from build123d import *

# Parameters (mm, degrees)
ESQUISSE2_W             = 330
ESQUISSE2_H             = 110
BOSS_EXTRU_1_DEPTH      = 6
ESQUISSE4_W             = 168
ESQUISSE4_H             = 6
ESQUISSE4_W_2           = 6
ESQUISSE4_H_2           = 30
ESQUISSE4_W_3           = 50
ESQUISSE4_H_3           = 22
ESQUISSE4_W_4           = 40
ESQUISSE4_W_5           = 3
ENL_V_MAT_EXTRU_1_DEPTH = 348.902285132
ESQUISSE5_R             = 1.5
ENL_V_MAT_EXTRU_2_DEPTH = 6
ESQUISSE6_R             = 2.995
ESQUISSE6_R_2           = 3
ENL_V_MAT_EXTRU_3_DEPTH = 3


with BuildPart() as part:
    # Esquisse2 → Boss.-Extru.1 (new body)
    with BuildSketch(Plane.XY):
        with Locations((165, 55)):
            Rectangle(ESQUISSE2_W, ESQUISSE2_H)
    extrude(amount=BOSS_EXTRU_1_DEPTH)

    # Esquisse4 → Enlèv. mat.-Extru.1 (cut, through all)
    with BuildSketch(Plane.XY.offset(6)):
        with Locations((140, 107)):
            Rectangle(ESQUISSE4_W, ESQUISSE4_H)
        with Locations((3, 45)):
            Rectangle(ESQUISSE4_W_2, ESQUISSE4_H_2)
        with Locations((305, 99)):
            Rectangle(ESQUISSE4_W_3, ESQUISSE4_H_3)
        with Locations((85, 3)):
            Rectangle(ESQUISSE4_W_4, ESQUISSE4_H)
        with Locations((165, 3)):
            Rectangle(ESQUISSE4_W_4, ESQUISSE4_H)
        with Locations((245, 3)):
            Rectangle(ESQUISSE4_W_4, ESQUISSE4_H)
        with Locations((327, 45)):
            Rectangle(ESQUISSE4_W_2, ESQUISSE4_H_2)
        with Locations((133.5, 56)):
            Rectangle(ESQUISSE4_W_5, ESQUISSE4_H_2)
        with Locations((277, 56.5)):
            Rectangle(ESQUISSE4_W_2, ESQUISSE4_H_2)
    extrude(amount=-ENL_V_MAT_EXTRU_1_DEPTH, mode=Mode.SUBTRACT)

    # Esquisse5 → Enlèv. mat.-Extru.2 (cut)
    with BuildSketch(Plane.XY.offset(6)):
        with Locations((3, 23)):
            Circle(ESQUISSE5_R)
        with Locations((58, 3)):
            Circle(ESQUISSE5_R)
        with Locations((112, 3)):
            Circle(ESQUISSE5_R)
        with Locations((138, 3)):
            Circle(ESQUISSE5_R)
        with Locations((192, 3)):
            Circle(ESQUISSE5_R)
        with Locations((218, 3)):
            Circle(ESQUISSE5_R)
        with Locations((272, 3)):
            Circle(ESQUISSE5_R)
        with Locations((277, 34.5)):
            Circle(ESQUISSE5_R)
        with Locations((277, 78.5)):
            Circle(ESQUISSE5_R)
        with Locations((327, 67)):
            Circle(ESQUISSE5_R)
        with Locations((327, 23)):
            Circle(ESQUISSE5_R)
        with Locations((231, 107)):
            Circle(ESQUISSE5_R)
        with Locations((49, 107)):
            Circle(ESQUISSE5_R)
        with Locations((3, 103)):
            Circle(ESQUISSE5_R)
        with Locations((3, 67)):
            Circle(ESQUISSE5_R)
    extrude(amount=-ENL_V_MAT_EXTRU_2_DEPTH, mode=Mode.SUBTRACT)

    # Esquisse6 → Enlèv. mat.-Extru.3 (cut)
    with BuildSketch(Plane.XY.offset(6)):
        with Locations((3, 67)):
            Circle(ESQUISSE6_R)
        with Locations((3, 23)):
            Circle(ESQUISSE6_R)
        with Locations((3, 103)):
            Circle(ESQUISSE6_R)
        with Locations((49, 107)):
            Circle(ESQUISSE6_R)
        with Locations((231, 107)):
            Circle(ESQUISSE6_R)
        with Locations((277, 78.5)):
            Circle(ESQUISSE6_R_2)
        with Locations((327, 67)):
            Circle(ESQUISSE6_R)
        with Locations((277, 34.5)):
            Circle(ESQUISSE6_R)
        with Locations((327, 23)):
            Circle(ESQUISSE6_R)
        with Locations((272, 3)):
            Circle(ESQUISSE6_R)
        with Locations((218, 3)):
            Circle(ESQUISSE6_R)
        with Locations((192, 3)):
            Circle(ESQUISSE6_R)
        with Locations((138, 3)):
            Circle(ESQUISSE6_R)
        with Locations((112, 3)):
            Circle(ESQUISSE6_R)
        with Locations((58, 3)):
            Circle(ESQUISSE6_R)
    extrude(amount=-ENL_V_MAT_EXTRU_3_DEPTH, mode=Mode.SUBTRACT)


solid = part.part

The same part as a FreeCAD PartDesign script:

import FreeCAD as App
import Part
import Sketcher
from FreeCAD import Vector
Q = App.Units.Quantity


def add_polygon(sketch, points):
    """Adds a closed chain of lines whose ends are joined by coincident constraints."""
    first, n = sketch.GeometryCount, len(points)
    for a, b in zip(points, points[1:] + points[:1]):
        sketch.addGeometry(Part.LineSegment(App.Vector(*a, 0), App.Vector(*b, 0)), False)
    for i in range(n):
        sketch.addConstraint(Sketcher.Constraint("Coincident", first + i, 2, first + (i + 1) % n, 1))

doc = App.newDocument("Part")
params = doc.addObject("Spreadsheet::Sheet", "Params")
for row, (alias, value) in enumerate([
    ("sketch1_width", "330 mm"),
    ("sketch1_height", "110 mm"),
    ("pad1_length", "6 mm"),
    ("sketch2_width", "168 mm"),
    ("sketch2_width2", "6 mm"),
    ("sketch2_width3", "50 mm"),
    ("sketch2_width4", "40 mm"),
    ("sketch2_width5", "3 mm"),
    ("sketch3_diameter", "3 mm"),
    ("pocket2_length", "6 mm"),
    ("sketch4_diameter", "6 mm"),
    ("sketch4_diameter2", "5.99 mm"),
    ("pocket3_length", "3 mm"),
], start=1):
    params.set(f"A{row}", alias)
    params.set(f"B{row}", "=" + value)
    params.setAlias(f"B{row}", alias)

body = doc.addObject("PartDesign::Body", "Body")

sketch1 = doc.addObject("Sketcher::SketchObject", "Sketch")
body.addObject(sketch1)
sketch1.AttachmentSupport = (doc.XY_Plane, [""])
sketch1.MapMode = "FlatFace"
add_polygon(sketch1, [(0, 110), (0, 0), (330, 0), (330, 110)])
sketch1.addConstraint([
    Sketcher.Constraint("Vertical", 0),
    Sketcher.Constraint("Horizontal", 1),
    Sketcher.Constraint("Vertical", 2),
    Sketcher.Constraint("Horizontal", 3),
    Sketcher.Constraint("Coincident", 0, 2, -1, 1),
    Sketcher.Constraint("DistanceX", 1, 1, 1, 2, Q("330 mm")),
    Sketcher.Constraint("DistanceY", 0, 2, 0, 1, Q("110 mm")),
])
sketch1.setExpression("Constraints[9]", "Params.sketch1_width")
sketch1.setExpression("Constraints[10]", "Params.sketch1_height")
pad1 = doc.addObject("PartDesign::Pad", "Pad")
body.addObject(pad1)
pad1.Profile = sketch1
pad1.setExpression("Length", "Params.pad1_length")

sketch2 = doc.addObject("Sketcher::SketchObject", "Sketch001")
body.addObject(sketch2)
sketch2.AttachmentSupport = (doc.XY_Plane, [""])
sketch2.MapMode = "FlatFace"
sketch2.AttachmentOffset = App.Placement(Vector(0, 0, 6), App.Rotation())
add_polygon(sketch2, [(56, 110), (56, 104), (224, 104), (224, 110)])
add_polygon(sketch2, [(0, 60), (0, 30), (6, 30), (6, 60)])
add_polygon(sketch2, [(280, 110), (280, 88), (330, 88), (330, 110)])
add_polygon(sketch2, [(65, 6), (65, 0), (105, 0), (105, 6)])
add_polygon(sketch2, [(145, 6), (145, 0), (185, 0), (185, 6)])
add_polygon(sketch2, [(225, 6), (225, 0), (265, 0), (265, 6)])
add_polygon(sketch2, [(324, 60), (324, 30), (330, 30), (330, 60)])
add_polygon(sketch2, [(132, 71), (132, 41), (135, 41), (135, 71)])
add_polygon(sketch2, [(274, 71.5), (274, 41.5), (280, 41.5), (280, 71.5)])
sketch2.addConstraint([
    Sketcher.Constraint("Vertical", 0),
    Sketcher.Constraint("Horizontal", 1),
    Sketcher.Constraint("Vertical", 2),
    Sketcher.Constraint("Horizontal", 3),
    Sketcher.Constraint("Vertical", 4),
    Sketcher.Constraint("Horizontal", 5),
    Sketcher.Constraint("Vertical", 6),
    Sketcher.Constraint("Horizontal", 7),
    Sketcher.Constraint("Vertical", 8),
    Sketcher.Constraint("Horizontal", 9),
    Sketcher.Constraint("Vertical", 10),
    Sketcher.Constraint("Horizontal", 11),
    Sketcher.Constraint("Vertical", 12),
    Sketcher.Constraint("Horizontal", 13),
    Sketcher.Constraint("Vertical", 14),
    Sketcher.Constraint("Horizontal", 15),
    Sketcher.Constraint("Vertical", 16),
    Sketcher.Constraint("Horizontal", 17),
    Sketcher.Constraint("Vertical", 18),
    Sketcher.Constraint("Horizontal", 19),
    Sketcher.Constraint("Vertical", 20),
    Sketcher.Constraint("Horizontal", 21),
    Sketcher.Constraint("Vertical", 22),
    Sketcher.Constraint("Horizontal", 23),
    Sketcher.Constraint("Vertical", 24),
    Sketcher.Constraint("Horizontal", 25),
    Sketcher.Constraint("Vertical", 26),
    Sketcher.Constraint("Horizontal", 27),
    Sketcher.Constraint("Vertical", 28),
    Sketcher.Constraint("Horizontal", 29),
    Sketcher.Constraint("Vertical", 30),
    Sketcher.Constraint("Horizontal", 31),
    Sketcher.Constraint("Vertical", 32),
    Sketcher.Constraint("Horizontal", 33),
    Sketcher.Constraint("Vertical", 34),
    Sketcher.Constraint("Horizontal", 35),
    Sketcher.Constraint("PointOnObject", 4, 2, -2),
    Sketcher.Constraint("PointOnObject", 12, 2, -1),
    Sketcher.Constraint("PointOnObject", 16, 2, -1),
    Sketcher.Constraint("PointOnObject", 20, 2, -1),
    Sketcher.Constraint("Horizontal", 3, 2, 10, 2),
    Sketcher.Constraint("Horizontal", 15, 2, 18, 2),
    Sketcher.Constraint("Horizontal", 19, 2, 22, 2),
    Sketcher.Constraint("Horizontal", 5, 2, 24, 2),
    Sketcher.Constraint("Horizontal", 7, 2, 26, 2),
    Sketcher.Constraint("Vertical", 10, 2, 25, 2),
    Sketcher.Constraint("Vertical", 11, 2, 33, 2),
    Sketcher.Constraint("Equal", 15, 17),
    Sketcher.Constraint("Equal", 19, 21),
    Sketcher.Constraint("Equal", 7, 25),
    Sketcher.Constraint("Equal", 27, 33),
    Sketcher.Constraint("Equal", 35, 0),
    Sketcher.Constraint("Equal", 2, 12),
    Sketcher.Constraint("Equal", 26, 28),
    Sketcher.Constraint("Equal", 30, 32),
    Sketcher.Constraint("DistanceX", 1, 1, 1, 2, Q("168 mm")),
    Sketcher.Constraint("DistanceX", 5, 1, 5, 2, Q("6 mm")),
    Sketcher.Constraint("DistanceX", 9, 1, 9, 2, Q("50 mm")),
    Sketcher.Constraint("DistanceX", 13, 1, 13, 2, Q("40 mm")),
    Sketcher.Constraint("DistanceX", 29, 1, 29, 2, Q("3 mm")),
    Sketcher.Constraint("DistanceY", 4, 2, 4, 1, Q("30 mm")),
    Sketcher.Constraint("DistanceY", 8, 2, 8, 1, Q("22 mm")),
    Sketcher.Constraint("DistanceX", -1, 1, 0, 2, Q("56 mm")),
    Sketcher.Constraint("DistanceY", -1, 1, 0, 2, Q("104 mm")),
    Sketcher.Constraint("DistanceY", -1, 1, 4, 2, Q("30 mm")),
    Sketcher.Constraint("DistanceX", -1, 1, 8, 2, Q("280 mm")),
    Sketcher.Constraint("DistanceX", -1, 1, 12, 2, Q("65 mm")),
    Sketcher.Constraint("DistanceX", -1, 1, 16, 2, Q("145 mm")),
    Sketcher.Constraint("DistanceX", -1, 1, 20, 2, Q("225 mm")),
    Sketcher.Constraint("DistanceX", -1, 1, 28, 2, Q("132 mm")),
    Sketcher.Constraint("DistanceY", -1, 1, 28, 2, Q("41 mm")),
    Sketcher.Constraint("DistanceY", -1, 1, 32, 2, Q("41.5 mm")),
])
sketch2.setExpression("Constraints[91]", "Params.sketch2_width")
sketch2.setExpression("Constraints[92]", "Params.sketch2_width2")
sketch2.setExpression("Constraints[93]", "Params.sketch2_width3")
sketch2.setExpression("Constraints[94]", "Params.sketch2_width4")
sketch2.setExpression("Constraints[95]", "Params.sketch2_width5")
pocket1 = doc.addObject("PartDesign::Pocket", "Pocket")
body.addObject(pocket1)
pocket1.Profile = sketch2
pocket1.Type = "ThroughAll"

sketch3 = doc.addObject("Sketcher::SketchObject", "Sketch002")
body.addObject(sketch3)
sketch3.AttachmentSupport = (doc.XY_Plane, [""])
sketch3.MapMode = "FlatFace"
sketch3.AttachmentOffset = App.Placement(Vector(0, 0, 6), App.Rotation())
sketch3.addGeometry([
    Part.Circle(Vector(3, 23, 0), Vector(0, 0, 1), 1.5),
    Part.Circle(Vector(58, 3, 0), Vector(0, 0, 1), 1.5),
    Part.Circle(Vector(112, 3, 0), Vector(0, 0, 1), 1.5),
    Part.Circle(Vector(138, 3, 0), Vector(0, 0, 1), 1.5),
    Part.Circle(Vector(192, 3, 0), Vector(0, 0, 1), 1.5),
    Part.Circle(Vector(218, 3, 0), Vector(0, 0, 1), 1.5),
    Part.Circle(Vector(272, 3, 0), Vector(0, 0, 1), 1.5),
    Part.Circle(Vector(277, 34.5, 0), Vector(0, 0, 1), 1.5),
    Part.Circle(Vector(277, 78.5, 0), Vector(0, 0, 1), 1.5),
    Part.Circle(Vector(327, 67, 0), Vector(0, 0, 1), 1.5),
    Part.Circle(Vector(327, 23, 0), Vector(0, 0, 1), 1.5),
    Part.Circle(Vector(231, 107, 0), Vector(0, 0, 1), 1.5),
    Part.Circle(Vector(49, 107, 0), Vector(0, 0, 1), 1.5),
    Part.Circle(Vector(3, 103, 0), Vector(0, 0, 1), 1.5),
    Part.Circle(Vector(3, 67, 0), Vector(0, 0, 1), 1.5),
], False)
sketch3.addConstraint([
    Sketcher.Constraint("Equal", 0, 1),
    Sketcher.Constraint("Equal", 1, 2),
    Sketcher.Constraint("Equal", 2, 3),
    Sketcher.Constraint("Equal", 3, 4),
    Sketcher.Constraint("Equal", 4, 5),
    Sketcher.Constraint("Equal", 5, 6),
    Sketcher.Constraint("Equal", 6, 7),
    Sketcher.Constraint("Equal", 7, 8),
    Sketcher.Constraint("Equal", 8, 9),
    Sketcher.Constraint("Equal", 9, 10),
    Sketcher.Constraint("Equal", 10, 11),
    Sketcher.Constraint("Equal", 11, 12),
    Sketcher.Constraint("Equal", 12, 13),
    Sketcher.Constraint("Equal", 13, 14),
    Sketcher.Constraint("Horizontal", 1, 3, 2, 3),
    Sketcher.Constraint("Horizontal", 2, 3, 3, 3),
    Sketcher.Constraint("Horizontal", 3, 3, 4, 3),
    Sketcher.Constraint("Horizontal", 4, 3, 5, 3),
    Sketcher.Constraint("Horizontal", 5, 3, 6, 3),
    Sketcher.Constraint("Horizontal", 0, 3, 10, 3),
    Sketcher.Constraint("Horizontal", 11, 3, 12, 3),
    Sketcher.Constraint("Horizontal", 9, 3, 14, 3),
    Sketcher.Constraint("Vertical", 7, 3, 8, 3),
    Sketcher.Constraint("Vertical", 9, 3, 10, 3),
    Sketcher.Constraint("Vertical", 0, 3, 13, 3),
    Sketcher.Constraint("Vertical", 13, 3, 14, 3),
    Sketcher.Constraint("Diameter", 0, Q("3 mm")),
    Sketcher.Constraint("DistanceX", -1, 1, 0, 3, Q("3 mm")),
    Sketcher.Constraint("DistanceY", -1, 1, 0, 3, Q("23 mm")),
    Sketcher.Constraint("DistanceX", -1, 1, 1, 3, Q("58 mm")),
    Sketcher.Constraint("DistanceY", -1, 1, 1, 3, Q("3 mm")),
    Sketcher.Constraint("DistanceX", -1, 1, 2, 3, Q("112 mm")),
    Sketcher.Constraint("DistanceX", -1, 1, 3, 3, Q("138 mm")),
    Sketcher.Constraint("DistanceX", -1, 1, 4, 3, Q("192 mm")),
    Sketcher.Constraint("DistanceX", -1, 1, 5, 3, Q("218 mm")),
    Sketcher.Constraint("DistanceX", -1, 1, 6, 3, Q("272 mm")),
    Sketcher.Constraint("DistanceX", -1, 1, 7, 3, Q("277 mm")),
    Sketcher.Constraint("DistanceX", -1, 1, 9, 3, Q("327 mm")),
    Sketcher.Constraint("DistanceY", -1, 1, 9, 3, Q("67 mm")),
    Sketcher.Constraint("DistanceX", -1, 1, 11, 3, Q("231 mm")),
    Sketcher.Constraint("DistanceY", -1, 1, 11, 3, Q("107 mm")),
    Sketcher.Constraint("DistanceX", -1, 1, 12, 3, Q("49 mm")),
    Sketcher.Constraint("DistanceY", -1, 1, 13, 3, Q("103 mm")),
    Sketcher.Constraint("DistanceY", 7, 3, 8, 3, Q("44 mm")),
    Sketcher.Constraint("DistanceY", -1, 1, 7, 3, Q("34.5 mm")),
])
sketch3.setExpression("Constraints[26]", "Params.sketch3_diameter")
pocket2 = doc.addObject("PartDesign::Pocket", "Pocket001")
body.addObject(pocket2)
pocket2.Profile = sketch3
pocket2.setExpression("Length", "Params.pocket2_length")

sketch4 = doc.addObject("Sketcher::SketchObject", "Sketch003")
body.addObject(sketch4)
sketch4.AttachmentSupport = (doc.XY_Plane, [""])
sketch4.MapMode = "FlatFace"
sketch4.AttachmentOffset = App.Placement(Vector(0, 0, 6), App.Rotation())
sketch4.addGeometry([
    Part.Circle(Vector(3, 67, 0), Vector(0, 0, 1), 3),
    Part.Circle(Vector(3, 23, 0), Vector(0, 0, 1), 3),
    Part.Circle(Vector(3, 103, 0), Vector(0, 0, 1), 3),
    Part.Circle(Vector(49, 107, 0), Vector(0, 0, 1), 3),
    Part.Circle(Vector(231, 107, 0), Vector(0, 0, 1), 3),
    Part.Circle(Vector(277, 78.5, 0), Vector(0, 0, 1), 3),
    Part.Circle(Vector(327, 67, 0), Vector(0, 0, 1), 3),
    Part.Circle(Vector(277, 34.5, 0), Vector(0, 0, 1), 3),
    Part.Circle(Vector(327, 23, 0), Vector(0, 0, 1), 3),
    Part.Circle(Vector(272, 3, 0), Vector(0, 0, 1), 3),
    Part.Circle(Vector(218, 3, 0), Vector(0, 0, 1), 3),
    Part.Circle(Vector(192, 3, 0), Vector(0, 0, 1), 3),
    Part.Circle(Vector(138, 3, 0), Vector(0, 0, 1), 3),
    Part.Circle(Vector(112, 3, 0), Vector(0, 0, 1), 3),
    Part.Circle(Vector(58, 3, 0), Vector(0, 0, 1), 3),
], False)
sketch4.addConstraint([
    Sketcher.Constraint("Equal", 0, 1),
    Sketcher.Constraint("Equal", 1, 2),
    Sketcher.Constraint("Equal", 2, 3),
    Sketcher.Constraint("Equal", 3, 4),
    Sketcher.Constraint("Equal", 4, 6),
    Sketcher.Constraint("Equal", 6, 7),
    Sketcher.Constraint("Equal", 7, 8),
    Sketcher.Constraint("Equal", 8, 9),
    Sketcher.Constraint("Equal", 9, 10),
    Sketcher.Constraint("Equal", 10, 11),
    Sketcher.Constraint("Equal", 11, 12),
    Sketcher.Constraint("Equal", 12, 13),
    Sketcher.Constraint("Equal", 13, 14),
    Sketcher.Constraint("Horizontal", 3, 3, 4, 3),
    Sketcher.Constraint("Horizontal", 0, 3, 6, 3),
    Sketcher.Constraint("Horizontal", 1, 3, 8, 3),
    Sketcher.Constraint("Horizontal", 9, 3, 10, 3),
    Sketcher.Constraint("Horizontal", 10, 3, 11, 3),
    Sketcher.Constraint("Horizontal", 11, 3, 12, 3),
    Sketcher.Constraint("Horizontal", 12, 3, 13, 3),
    Sketcher.Constraint("Horizontal", 13, 3, 14, 3),
    Sketcher.Constraint("Vertical", 0, 3, 1, 3),
    Sketcher.Constraint("Vertical", 1, 3, 2, 3),
    Sketcher.Constraint("Vertical", 5, 3, 7, 3),
    Sketcher.Constraint("Vertical", 6, 3, 8, 3),
    Sketcher.Constraint("Diameter", 5, Q("6 mm")),
    Sketcher.Constraint("Diameter", 0, Q("5.99 mm")),
    Sketcher.Constraint("DistanceX", -1, 1, 0, 3, Q("3 mm")),
    Sketcher.Constraint("DistanceY", -1, 1, 0, 3, Q("67 mm")),
    Sketcher.Constraint("DistanceY", -1, 1, 1, 3, Q("23 mm")),
    Sketcher.Constraint("DistanceY", -1, 1, 2, 3, Q("103 mm")),
    Sketcher.Constraint("DistanceX", -1, 1, 3, 3, Q("49 mm")),
    Sketcher.Constraint("DistanceY", -1, 1, 3, 3, Q("107 mm")),
    Sketcher.Constraint("DistanceX", -1, 1, 4, 3, Q("231 mm")),
    Sketcher.Constraint("DistanceX", -1, 1, 5, 3, Q("277 mm")),
    Sketcher.Constraint("DistanceX", -1, 1, 6, 3, Q("327 mm")),
    Sketcher.Constraint("DistanceX", -1, 1, 9, 3, Q("272 mm")),
    Sketcher.Constraint("DistanceY", -1, 1, 9, 3, Q("3 mm")),
    Sketcher.Constraint("DistanceX", -1, 1, 10, 3, Q("218 mm")),
    Sketcher.Constraint("DistanceX", -1, 1, 11, 3, Q("192 mm")),
    Sketcher.Constraint("DistanceX", -1, 1, 12, 3, Q("138 mm")),
    Sketcher.Constraint("DistanceX", -1, 1, 13, 3, Q("112 mm")),
    Sketcher.Constraint("DistanceX", -1, 1, 14, 3, Q("58 mm")),
    Sketcher.Constraint("DistanceY", 7, 3, 5, 3, Q("44 mm")),
    Sketcher.Constraint("DistanceY", -1, 1, 5, 3, Q("78.5 mm")),
])
sketch4.setExpression("Constraints[25]", "Params.sketch4_diameter")
sketch4.setExpression("Constraints[26]", "Params.sketch4_diameter2")
pocket3 = doc.addObject("PartDesign::Pocket", "Pocket002")
body.addObject(pocket3)
pocket3.Profile = sketch4
pocket3.setExpression("Length", "Params.pocket3_length")

doc.recompute()
